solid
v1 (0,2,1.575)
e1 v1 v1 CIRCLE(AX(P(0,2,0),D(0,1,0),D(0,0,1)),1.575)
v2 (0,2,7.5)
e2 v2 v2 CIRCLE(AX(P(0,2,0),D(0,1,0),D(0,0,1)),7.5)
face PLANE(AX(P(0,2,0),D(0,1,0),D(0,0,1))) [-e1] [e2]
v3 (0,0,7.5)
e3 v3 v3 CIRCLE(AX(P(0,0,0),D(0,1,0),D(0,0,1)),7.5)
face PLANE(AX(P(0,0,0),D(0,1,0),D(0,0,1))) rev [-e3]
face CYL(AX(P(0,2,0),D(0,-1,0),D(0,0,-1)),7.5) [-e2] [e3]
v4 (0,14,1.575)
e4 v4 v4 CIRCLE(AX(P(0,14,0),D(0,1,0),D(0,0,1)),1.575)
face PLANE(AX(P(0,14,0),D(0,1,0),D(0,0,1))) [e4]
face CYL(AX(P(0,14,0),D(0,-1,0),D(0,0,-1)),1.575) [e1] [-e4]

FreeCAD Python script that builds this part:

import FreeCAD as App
import Part
import Sketcher
from FreeCAD import Vector

doc = App.newDocument("Part")
params = doc.addObject("Spreadsheet::Sheet", "Params")
for row, (alias, value) in enumerate([
    ("sketch1_diameter", "15 mm"),
    ("pad1_length", "2 mm"),
    ("sketch2_diameter", "3.15 mm"),
    ("pad2_length", "12 mm"),
], start=1):
    params.set(f"A{row}", alias)
    params.set(f"B{row}", "=" + value)
    params.setAlias(f"B{row}", alias)

body = doc.addObject("PartDesign::Body", "Body")

sketch1 = body.newObject("Sketcher::SketchObject", "Sketch")
sketch1.AttachmentSupport = (doc.getObject("XZ_Plane"), [""])
sketch1.MapMode = "FlatFace"
sketch1.addGeometry(Part.Circle(Vector(0, 0, 0), Vector(0, 0, 1), 8), False)
sketch1.addConstraint([
    Sketcher.Constraint("Coincident", 0, 3, -1, 1),
    Sketcher.Constraint("Diameter", 0, 15.0),
])
sketch1.setExpression("Constraints[1]", "Params.sketch1_diameter")
pad1 = body.newObject("PartDesign::Pad", "Pad")
pad1.Profile = sketch1
pad1.setExpression("Length", "Params.pad1_length")
pad1.Reversed = True

sketch2 = body.newObject("Sketcher::SketchObject", "Sketch001")
sketch2.AttachmentSupport = (doc.getObject("XZ_Plane"), [""])
sketch2.MapMode = "FlatFace"
sketch2.AttachmentOffset = App.Placement(Vector(0, 0, -2), App.Rotation())
sketch2.addGeometry(Part.Circle(Vector(0, 0, 0), Vector(0, 0, 1), 1.6), False)
sketch2.addConstraint([
    Sketcher.Constraint("Coincident", 0, 3, -1, 1),
    Sketcher.Constraint("Diameter", 0, 3.15),
])
sketch2.setExpression("Constraints[1]", "Params.sketch2_diameter")
pad2 = body.newObject("PartDesign::Pad", "Pad001")
pad2.Profile = sketch2
pad2.setExpression("Length", "Params.pad2_length")
pad2.Reversed = True

doc.recompute()
